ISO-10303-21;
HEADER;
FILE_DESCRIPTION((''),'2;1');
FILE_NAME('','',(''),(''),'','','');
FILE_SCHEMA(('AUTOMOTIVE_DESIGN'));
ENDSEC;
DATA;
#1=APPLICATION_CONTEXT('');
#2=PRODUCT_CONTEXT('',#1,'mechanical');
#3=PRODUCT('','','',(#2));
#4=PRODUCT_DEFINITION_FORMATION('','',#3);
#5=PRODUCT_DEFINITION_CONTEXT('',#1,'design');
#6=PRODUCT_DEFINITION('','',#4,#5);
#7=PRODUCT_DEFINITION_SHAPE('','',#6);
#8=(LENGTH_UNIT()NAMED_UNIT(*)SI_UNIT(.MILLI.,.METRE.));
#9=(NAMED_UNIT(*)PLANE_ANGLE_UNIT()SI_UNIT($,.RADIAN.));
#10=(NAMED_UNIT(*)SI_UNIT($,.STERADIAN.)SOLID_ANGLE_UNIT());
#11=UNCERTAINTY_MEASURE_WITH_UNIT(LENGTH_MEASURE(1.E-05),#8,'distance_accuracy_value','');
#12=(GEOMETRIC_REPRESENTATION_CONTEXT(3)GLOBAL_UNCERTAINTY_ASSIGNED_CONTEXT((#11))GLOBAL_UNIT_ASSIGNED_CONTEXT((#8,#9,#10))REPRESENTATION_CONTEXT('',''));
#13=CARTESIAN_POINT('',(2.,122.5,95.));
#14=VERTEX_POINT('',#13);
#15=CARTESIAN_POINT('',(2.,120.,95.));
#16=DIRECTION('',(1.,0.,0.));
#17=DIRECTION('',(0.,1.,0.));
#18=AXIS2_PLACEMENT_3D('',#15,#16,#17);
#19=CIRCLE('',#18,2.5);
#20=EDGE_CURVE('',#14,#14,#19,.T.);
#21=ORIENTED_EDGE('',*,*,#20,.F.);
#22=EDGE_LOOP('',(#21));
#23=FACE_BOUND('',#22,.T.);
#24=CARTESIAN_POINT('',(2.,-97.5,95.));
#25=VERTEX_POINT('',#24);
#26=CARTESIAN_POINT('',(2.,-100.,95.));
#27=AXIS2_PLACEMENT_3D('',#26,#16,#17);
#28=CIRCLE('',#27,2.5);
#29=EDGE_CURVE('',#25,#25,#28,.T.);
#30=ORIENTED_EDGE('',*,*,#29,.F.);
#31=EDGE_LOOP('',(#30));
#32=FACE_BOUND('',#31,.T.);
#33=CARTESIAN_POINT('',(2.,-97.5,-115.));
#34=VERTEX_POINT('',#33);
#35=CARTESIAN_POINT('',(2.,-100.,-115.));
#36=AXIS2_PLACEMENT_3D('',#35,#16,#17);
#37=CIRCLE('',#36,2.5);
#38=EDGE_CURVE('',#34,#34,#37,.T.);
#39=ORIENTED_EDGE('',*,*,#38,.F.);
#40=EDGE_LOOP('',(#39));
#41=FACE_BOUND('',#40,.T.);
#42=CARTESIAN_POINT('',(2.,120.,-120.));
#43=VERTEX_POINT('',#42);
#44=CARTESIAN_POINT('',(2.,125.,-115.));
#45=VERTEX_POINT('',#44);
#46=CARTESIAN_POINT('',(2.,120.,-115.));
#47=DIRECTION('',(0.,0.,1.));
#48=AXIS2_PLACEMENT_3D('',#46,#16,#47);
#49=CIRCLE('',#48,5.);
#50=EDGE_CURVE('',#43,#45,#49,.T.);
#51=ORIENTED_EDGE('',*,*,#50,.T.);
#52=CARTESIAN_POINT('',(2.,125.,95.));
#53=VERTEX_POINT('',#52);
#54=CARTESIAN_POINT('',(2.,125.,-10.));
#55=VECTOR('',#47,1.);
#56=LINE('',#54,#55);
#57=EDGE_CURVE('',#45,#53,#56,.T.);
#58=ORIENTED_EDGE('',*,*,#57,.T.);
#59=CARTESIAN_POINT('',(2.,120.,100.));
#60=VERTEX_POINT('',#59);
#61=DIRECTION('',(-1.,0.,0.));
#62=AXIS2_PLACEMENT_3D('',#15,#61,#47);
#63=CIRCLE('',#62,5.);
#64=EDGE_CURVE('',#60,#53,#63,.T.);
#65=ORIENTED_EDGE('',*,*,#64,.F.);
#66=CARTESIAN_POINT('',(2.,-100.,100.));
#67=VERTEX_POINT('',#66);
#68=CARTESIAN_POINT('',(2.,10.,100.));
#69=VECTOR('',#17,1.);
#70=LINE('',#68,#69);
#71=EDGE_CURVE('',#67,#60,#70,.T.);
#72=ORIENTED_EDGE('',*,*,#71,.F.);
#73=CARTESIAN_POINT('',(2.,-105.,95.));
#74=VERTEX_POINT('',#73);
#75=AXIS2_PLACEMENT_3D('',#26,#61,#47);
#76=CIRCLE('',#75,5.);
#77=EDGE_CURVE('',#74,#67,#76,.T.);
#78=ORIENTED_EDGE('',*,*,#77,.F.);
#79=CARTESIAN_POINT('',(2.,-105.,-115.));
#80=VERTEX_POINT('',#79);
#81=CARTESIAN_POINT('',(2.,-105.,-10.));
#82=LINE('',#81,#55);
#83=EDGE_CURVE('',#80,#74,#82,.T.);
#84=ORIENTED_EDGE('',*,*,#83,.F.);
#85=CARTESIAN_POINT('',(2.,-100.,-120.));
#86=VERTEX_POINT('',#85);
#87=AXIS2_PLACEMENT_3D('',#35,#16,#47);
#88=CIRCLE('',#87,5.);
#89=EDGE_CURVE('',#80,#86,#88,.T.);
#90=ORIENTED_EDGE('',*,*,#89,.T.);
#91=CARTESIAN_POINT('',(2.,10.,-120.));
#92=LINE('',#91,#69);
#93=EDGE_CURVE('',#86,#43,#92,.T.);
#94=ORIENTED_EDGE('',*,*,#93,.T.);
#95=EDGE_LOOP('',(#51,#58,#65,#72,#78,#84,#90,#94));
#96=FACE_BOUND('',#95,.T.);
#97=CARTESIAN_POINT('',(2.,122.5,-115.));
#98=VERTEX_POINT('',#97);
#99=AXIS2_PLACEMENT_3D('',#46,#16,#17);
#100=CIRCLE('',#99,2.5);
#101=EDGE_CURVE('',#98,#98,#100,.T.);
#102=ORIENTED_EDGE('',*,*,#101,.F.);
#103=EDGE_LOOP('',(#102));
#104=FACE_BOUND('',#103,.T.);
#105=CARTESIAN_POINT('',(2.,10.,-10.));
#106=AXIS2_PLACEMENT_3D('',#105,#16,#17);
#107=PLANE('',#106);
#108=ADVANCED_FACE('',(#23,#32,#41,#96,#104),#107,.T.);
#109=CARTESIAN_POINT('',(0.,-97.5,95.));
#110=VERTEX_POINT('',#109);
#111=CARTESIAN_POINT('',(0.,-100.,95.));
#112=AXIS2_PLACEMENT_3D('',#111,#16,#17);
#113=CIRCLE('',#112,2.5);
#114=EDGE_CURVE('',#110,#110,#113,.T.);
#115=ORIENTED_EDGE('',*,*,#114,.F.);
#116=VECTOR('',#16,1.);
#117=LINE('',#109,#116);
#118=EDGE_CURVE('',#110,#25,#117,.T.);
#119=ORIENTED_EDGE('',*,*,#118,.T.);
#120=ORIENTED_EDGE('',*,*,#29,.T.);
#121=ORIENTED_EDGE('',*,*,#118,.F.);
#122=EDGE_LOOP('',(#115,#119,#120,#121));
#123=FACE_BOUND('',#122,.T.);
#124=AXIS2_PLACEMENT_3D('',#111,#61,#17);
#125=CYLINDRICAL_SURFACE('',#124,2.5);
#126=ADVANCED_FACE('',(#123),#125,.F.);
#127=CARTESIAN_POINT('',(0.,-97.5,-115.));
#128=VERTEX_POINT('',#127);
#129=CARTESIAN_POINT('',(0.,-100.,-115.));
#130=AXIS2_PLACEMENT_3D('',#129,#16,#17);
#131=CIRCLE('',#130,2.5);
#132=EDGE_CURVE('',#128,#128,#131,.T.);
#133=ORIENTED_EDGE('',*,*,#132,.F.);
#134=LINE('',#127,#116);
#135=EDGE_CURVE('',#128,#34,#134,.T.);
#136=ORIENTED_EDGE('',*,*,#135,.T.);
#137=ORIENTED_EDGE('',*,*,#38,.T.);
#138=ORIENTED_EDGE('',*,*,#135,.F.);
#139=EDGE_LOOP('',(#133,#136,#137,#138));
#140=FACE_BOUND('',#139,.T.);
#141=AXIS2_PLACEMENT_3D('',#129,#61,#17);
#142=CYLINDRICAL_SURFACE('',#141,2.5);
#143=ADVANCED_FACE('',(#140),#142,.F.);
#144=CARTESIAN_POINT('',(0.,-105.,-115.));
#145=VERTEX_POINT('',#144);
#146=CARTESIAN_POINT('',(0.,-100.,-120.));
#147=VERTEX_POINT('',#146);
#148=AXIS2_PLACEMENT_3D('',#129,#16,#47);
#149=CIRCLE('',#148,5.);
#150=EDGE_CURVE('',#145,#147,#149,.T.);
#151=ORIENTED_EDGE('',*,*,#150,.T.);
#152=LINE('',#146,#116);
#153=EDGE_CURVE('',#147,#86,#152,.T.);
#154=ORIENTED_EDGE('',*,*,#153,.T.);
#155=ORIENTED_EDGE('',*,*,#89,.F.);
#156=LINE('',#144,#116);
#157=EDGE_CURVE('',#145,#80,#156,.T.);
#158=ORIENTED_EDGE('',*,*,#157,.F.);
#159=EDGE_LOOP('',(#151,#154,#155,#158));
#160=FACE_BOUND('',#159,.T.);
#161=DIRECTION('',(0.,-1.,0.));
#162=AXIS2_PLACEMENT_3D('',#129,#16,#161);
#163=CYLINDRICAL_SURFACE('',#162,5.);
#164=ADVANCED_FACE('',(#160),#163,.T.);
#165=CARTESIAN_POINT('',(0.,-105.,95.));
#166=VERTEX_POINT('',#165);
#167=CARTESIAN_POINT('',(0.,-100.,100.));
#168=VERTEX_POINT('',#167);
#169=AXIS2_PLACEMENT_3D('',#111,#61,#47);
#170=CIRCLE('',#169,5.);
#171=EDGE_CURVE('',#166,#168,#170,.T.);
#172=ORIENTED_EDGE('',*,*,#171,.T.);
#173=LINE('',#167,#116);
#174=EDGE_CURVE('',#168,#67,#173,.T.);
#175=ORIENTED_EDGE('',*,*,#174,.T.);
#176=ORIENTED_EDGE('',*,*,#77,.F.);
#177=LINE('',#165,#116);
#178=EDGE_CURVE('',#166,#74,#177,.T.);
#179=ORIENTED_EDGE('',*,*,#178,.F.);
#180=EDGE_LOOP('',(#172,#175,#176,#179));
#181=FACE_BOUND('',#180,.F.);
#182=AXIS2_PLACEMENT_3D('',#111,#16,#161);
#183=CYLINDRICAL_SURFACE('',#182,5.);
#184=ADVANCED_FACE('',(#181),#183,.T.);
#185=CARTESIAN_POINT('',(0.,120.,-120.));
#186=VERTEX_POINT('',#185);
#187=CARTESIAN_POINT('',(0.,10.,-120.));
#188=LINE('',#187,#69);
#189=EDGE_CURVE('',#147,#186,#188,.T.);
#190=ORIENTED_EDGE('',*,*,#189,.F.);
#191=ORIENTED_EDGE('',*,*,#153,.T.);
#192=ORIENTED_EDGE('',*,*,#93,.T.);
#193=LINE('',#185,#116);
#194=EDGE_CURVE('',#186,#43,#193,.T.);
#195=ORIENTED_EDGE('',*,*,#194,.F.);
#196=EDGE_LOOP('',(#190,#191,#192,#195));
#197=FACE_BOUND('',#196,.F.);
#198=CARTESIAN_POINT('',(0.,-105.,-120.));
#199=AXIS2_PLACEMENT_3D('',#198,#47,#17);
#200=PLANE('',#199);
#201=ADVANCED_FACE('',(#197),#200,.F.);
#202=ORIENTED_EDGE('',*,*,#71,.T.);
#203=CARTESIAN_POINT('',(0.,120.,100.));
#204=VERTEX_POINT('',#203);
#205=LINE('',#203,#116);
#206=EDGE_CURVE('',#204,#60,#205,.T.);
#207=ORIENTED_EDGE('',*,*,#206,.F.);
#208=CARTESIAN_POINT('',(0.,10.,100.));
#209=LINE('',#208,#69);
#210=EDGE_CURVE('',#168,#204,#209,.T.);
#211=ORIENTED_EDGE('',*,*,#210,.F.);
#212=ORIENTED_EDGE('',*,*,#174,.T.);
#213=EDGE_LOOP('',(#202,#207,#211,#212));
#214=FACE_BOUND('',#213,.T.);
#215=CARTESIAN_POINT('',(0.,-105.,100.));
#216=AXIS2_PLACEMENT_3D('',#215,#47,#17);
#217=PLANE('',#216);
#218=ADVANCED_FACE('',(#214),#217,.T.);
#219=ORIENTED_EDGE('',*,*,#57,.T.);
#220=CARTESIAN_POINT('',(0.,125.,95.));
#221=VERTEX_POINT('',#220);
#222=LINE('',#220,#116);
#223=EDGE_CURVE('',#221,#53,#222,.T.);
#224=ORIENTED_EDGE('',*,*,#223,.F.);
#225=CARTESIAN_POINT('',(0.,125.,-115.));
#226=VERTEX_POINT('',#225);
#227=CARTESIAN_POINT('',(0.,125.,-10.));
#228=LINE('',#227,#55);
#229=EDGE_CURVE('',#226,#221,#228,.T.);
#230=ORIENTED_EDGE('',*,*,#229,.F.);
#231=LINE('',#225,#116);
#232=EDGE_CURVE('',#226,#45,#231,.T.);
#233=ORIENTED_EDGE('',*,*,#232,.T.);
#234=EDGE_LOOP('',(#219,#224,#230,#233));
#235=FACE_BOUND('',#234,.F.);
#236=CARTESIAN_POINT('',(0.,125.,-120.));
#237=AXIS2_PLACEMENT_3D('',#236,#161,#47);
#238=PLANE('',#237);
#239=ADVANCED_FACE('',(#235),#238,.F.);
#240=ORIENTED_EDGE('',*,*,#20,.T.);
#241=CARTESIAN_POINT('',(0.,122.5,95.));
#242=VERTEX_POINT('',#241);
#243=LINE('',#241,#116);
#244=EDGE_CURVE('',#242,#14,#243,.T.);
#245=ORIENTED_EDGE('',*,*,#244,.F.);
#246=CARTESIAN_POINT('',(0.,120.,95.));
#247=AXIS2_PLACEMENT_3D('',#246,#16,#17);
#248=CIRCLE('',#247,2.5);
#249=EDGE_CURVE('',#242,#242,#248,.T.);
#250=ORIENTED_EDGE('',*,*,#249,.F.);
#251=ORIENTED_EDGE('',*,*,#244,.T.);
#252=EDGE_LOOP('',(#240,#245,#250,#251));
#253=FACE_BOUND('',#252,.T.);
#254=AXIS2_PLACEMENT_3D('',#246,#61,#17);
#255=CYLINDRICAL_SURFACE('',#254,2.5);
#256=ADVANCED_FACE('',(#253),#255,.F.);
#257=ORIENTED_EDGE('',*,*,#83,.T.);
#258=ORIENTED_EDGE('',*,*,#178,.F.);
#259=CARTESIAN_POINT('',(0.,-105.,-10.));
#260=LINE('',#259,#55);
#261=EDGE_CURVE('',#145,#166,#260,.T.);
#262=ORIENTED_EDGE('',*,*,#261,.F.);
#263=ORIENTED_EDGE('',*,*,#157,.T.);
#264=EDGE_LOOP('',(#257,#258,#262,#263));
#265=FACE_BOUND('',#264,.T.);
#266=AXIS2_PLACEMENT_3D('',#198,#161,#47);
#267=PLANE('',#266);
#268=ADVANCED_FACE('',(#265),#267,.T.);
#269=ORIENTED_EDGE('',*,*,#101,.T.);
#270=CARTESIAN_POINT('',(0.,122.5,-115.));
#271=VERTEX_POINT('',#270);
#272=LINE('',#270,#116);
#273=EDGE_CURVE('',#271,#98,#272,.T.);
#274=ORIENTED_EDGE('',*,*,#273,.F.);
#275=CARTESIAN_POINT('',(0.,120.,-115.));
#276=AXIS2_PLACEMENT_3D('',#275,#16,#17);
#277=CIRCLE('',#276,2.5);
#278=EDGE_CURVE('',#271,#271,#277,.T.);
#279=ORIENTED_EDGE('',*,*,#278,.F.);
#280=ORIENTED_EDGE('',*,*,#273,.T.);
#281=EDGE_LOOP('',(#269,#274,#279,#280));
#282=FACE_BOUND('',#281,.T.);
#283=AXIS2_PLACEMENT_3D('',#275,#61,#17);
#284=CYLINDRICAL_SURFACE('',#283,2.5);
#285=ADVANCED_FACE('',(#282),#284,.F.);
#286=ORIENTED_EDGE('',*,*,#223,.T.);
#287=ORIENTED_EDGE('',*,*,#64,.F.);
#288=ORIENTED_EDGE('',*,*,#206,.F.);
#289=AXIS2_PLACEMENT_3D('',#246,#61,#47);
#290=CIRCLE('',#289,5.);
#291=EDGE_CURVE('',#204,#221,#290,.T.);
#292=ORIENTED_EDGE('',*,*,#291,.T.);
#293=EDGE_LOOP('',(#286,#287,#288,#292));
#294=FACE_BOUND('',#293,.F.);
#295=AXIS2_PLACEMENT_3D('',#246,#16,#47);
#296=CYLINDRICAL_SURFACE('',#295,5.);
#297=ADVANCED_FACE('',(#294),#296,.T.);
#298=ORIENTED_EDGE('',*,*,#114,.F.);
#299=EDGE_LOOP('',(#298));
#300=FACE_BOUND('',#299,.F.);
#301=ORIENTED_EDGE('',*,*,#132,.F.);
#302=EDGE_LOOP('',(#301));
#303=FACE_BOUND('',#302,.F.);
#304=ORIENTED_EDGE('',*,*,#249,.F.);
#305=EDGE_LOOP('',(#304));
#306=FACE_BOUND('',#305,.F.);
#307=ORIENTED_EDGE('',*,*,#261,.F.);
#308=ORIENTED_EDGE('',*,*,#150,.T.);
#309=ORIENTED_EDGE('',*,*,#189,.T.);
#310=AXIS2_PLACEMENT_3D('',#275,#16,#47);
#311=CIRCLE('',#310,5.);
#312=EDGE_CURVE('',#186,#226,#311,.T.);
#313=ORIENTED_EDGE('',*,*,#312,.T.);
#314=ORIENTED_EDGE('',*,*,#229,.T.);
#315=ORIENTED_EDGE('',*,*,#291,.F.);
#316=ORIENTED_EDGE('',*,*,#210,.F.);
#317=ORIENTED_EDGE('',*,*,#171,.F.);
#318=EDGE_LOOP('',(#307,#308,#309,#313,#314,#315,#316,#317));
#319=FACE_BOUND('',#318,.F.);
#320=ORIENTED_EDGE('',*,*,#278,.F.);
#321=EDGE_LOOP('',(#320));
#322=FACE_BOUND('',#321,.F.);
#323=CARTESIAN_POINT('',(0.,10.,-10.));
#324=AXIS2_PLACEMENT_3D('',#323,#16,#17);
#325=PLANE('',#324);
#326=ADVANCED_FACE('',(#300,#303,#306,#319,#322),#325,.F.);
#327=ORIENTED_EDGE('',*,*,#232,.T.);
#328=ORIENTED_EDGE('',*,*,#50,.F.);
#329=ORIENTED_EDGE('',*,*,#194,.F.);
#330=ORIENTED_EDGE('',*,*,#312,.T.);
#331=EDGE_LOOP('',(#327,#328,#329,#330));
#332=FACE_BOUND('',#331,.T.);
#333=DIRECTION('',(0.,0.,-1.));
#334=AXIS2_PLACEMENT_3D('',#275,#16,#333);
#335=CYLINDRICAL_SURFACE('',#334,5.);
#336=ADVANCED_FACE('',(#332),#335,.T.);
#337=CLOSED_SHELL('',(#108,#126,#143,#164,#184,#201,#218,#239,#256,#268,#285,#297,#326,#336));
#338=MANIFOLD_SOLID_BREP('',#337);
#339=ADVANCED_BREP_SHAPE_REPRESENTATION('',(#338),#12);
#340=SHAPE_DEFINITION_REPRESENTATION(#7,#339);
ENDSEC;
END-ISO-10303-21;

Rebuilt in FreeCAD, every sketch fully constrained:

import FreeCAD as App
import Part
import Sketcher
from FreeCAD import Vector


def edges_at(feature, points):
    """Names of the edges that pass closest to the given points."""
    edges = feature.Shape.Edges
    near = lambda p: min(range(len(edges)), key=lambda i: edges[i].distToShape(Part.Vertex(*p))[0])
    return sorted({f"Edge{near(p) + 1}" for p in points})

doc = App.newDocument("Part")
params = doc.addObject("Spreadsheet::Sheet", "Params")
for row, (alias, value) in enumerate([
    ("sketch1_diameter", "5 mm"),
    ("sketch1_width", "230 mm"),
    ("sketch1_height", "220 mm"),
    ("pad1_length", "2 mm"),
    ("fillet_radius", "5 mm"),
], start=1):
    params.set(f"A{row}", alias)
    params.set(f"B{row}", "=" + value)
    params.setAlias(f"B{row}", alias)

body = doc.addObject("PartDesign::Body", "Body")

sketch1 = body.newObject("Sketcher::SketchObject", "Sketch")
sketch1.AttachmentSupport = (doc.getObject("YZ_Plane"), [""])
sketch1.MapMode = "FlatFace"
sketch1.addGeometry([
    Part.LineSegment(Vector(-105, 100, 0), Vector(-105, -120, 0)),
    Part.LineSegment(Vector(-105, -120, 0), Vector(125, -120, 0)),
    Part.LineSegment(Vector(125, -120, 0), Vector(125, 100, 0)),
    Part.LineSegment(Vector(125, 100, 0), Vector(-105, 100, 0)),
    Part.Circle(Vector(-100, -115, 0), Vector(0, 0, 1), 2.5),
    Part.Circle(Vector(120, -115, 0), Vector(0, 0, 1), 2.5),
    Part.Circle(Vector(-100, 95, 0), Vector(0, 0, 1), 2.5),
    Part.Circle(Vector(120, 95, 0), Vector(0, 0, 1), 2.5),
], False)
sketch1.addConstraint([
    Sketcher.Constraint("Coincident", 0, 2, 1, 1),
    Sketcher.Constraint("Coincident", 1, 2, 2, 1),
    Sketcher.Constraint("Coincident", 2, 2, 3, 1),
    Sketcher.Constraint("Coincident", 3, 2, 0, 1),
    Sketcher.Constraint("Vertical", 0),
    Sketcher.Constraint("Horizontal", 1),
    Sketcher.Constraint("Vertical", 2),
    Sketcher.Constraint("Horizontal", 3),
    Sketcher.Constraint("Equal", 4, 5),
    Sketcher.Constraint("Equal", 5, 6),
    Sketcher.Constraint("Equal", 6, 7),
    Sketcher.Constraint("Horizontal", 4, 3, 5, 3),
    Sketcher.Constraint("Horizontal", 6, 3, 7, 3),
    Sketcher.Constraint("Vertical", 4, 3, 6, 3),
    Sketcher.Constraint("Vertical", 5, 3, 7, 3),
    Sketcher.Constraint("Diameter", 4, 5.0),
    Sketcher.Constraint("DistanceX", 1, 1, 1, 2, 230.0),
    Sketcher.Constraint("DistanceY", 0, 2, 0, 1, 220.0),
    Sketcher.Constraint("DistanceX", 4, 3, -1, 1, 100.0),
    Sketcher.Constraint("DistanceY", 4, 3, -1, 1, 115.0),
    Sketcher.Constraint("DistanceX", -1, 1, 5, 3, 120.0),
    Sketcher.Constraint("DistanceY", -1, 1, 6, 3, 95.0),
    Sketcher.Constraint("DistanceX", 0, 2, -1, 1, 105.0),
    Sketcher.Constraint("DistanceY", 0, 2, -1, 1, 120.0),
])
sketch1.setExpression("Constraints[15]", "Params.sketch1_diameter")
sketch1.setExpression("Constraints[16]", "Params.sketch1_width")
sketch1.setExpression("Constraints[17]", "Params.sketch1_height")
pad1 = body.newObject("PartDesign::Pad", "Pad")
pad1.Profile = sketch1
pad1.setExpression("Length", "Params.pad1_length")
doc.recompute()

fillet = body.newObject("PartDesign::Fillet", "Fillet")
fillet.Base = (pad1, edges_at(pad1, [
    (1, 125, -120),
    (1, -105, -120),
    (1, -105, 100),
    (1, 125, 100),
]))
fillet.setExpression("Radius", "Params.fillet_radius")

doc.recompute()
